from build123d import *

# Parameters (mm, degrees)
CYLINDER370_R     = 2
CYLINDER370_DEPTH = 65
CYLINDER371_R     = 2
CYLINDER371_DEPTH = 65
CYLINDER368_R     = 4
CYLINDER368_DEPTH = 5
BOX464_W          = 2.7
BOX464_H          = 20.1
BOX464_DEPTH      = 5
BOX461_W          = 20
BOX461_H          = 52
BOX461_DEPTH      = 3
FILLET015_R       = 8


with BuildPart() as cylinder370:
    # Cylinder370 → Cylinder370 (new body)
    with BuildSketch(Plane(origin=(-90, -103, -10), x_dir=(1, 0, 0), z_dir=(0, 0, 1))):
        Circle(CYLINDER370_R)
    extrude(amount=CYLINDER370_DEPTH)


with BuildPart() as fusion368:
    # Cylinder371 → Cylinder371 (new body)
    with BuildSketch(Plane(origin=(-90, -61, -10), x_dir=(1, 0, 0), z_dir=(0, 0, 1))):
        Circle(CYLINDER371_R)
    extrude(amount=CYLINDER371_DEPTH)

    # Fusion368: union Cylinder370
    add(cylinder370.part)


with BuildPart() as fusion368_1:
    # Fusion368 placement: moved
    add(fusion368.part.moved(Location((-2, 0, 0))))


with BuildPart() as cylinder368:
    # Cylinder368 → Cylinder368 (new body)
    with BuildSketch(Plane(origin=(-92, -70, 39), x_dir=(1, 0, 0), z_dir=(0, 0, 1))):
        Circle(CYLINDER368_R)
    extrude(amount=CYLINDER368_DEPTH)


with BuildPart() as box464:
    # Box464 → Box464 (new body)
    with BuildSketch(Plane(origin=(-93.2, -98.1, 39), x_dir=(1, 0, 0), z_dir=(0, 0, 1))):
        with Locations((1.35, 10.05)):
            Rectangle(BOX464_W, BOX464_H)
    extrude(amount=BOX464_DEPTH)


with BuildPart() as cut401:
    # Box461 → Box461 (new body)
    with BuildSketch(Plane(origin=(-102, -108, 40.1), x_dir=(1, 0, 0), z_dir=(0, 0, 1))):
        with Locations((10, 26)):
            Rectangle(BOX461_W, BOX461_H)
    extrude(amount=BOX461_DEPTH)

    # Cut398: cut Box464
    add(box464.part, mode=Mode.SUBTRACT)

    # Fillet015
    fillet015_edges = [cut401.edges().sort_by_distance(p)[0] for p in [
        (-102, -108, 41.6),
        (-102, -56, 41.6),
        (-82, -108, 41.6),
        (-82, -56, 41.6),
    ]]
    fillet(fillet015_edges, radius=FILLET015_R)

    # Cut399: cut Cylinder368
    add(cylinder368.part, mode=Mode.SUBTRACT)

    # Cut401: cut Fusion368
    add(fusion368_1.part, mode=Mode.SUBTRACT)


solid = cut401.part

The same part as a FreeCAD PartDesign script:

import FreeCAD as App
import Part
import Sketcher

V = App.Vector
Q = App.Units.Quantity


def edges_at(feature, points):
    """Names of the edges that pass closest to the given points."""
    edges = feature.Shape.Edges
    near = lambda p: min(range(len(edges)), key=lambda i: edges[i].distToShape(Part.Vertex(*p))[0])
    return sorted({f"Edge{near(p) + 1}" for p in points})

doc = App.newDocument("Part")
body = doc.addObject("PartDesign::Body", "Body")

sketch1 = body.newObject("Sketcher::SketchObject", "Sketch")
sketch1.AttachmentSupport = (doc.getObject("XY_Plane"), [""])
sketch1.MapMode = "FlatFace"
sketch1.AttachmentOffset = App.Placement(V(0, 0, -10), App.Rotation())
sketch1.addGeometry(Part.Circle(V(-90, -103, 0), V(0, 0, 1), 2), False)
sketch1.addConstraint([
    Sketcher.Constraint("Diameter", 0, Q("4 mm")),
    Sketcher.Constraint("DistanceX", 0, 3, -1, 1, Q("90 mm")),
    Sketcher.Constraint("DistanceY", 0, 3, -1, 1, Q("103 mm")),
])
pad1 = body.newObject("PartDesign::Pad", "Pad")
pad1.Profile = sketch1
pad1.Length = 65
body2 = doc.addObject("PartDesign::Body", "Body001")
body2.AllowCompound = True

sketch2 = body2.newObject("Sketcher::SketchObject", "Sketch001")
sketch2.AttachmentSupport = (doc.getObject("XY_Plane001"), [""])
sketch2.MapMode = "FlatFace"
sketch2.AttachmentOffset = App.Placement(V(0, 0, -10), App.Rotation())
sketch2.addGeometry(Part.Circle(V(-90, -61, 0), V(0, 0, 1), 2), False)
sketch2.addConstraint([
    Sketcher.Constraint("Diameter", 0, Q("4 mm")),
    Sketcher.Constraint("DistanceX", 0, 3, -1, 1, Q("90 mm")),
    Sketcher.Constraint("DistanceY", 0, 3, -1, 1, Q("61 mm")),
])
pad2 = body2.newObject("PartDesign::Pad", "Pad001")
pad2.Profile = sketch2
pad2.Length = 65
doc.recompute()

boolean = body2.newObject("PartDesign::Boolean", "Boolean")
boolean.Type = "Fuse"
boolean.addObjects([body])
body3 = doc.addObject("PartDesign::Body", "Body002")
body3.AllowCompound = True
doc.recompute()

body2.Placement = App.Placement(V(-2, 0, 0), App.Rotation(V(0, 0, 1), 0))
boolean2 = body3.newObject("PartDesign::Boolean", "Boolean001")
boolean2.Type = "Fuse"
boolean2.addObjects([body2])
body4 = doc.addObject("PartDesign::Body", "Body003")

sketch3 = body4.newObject("Sketcher::SketchObject", "Sketch002")
sketch3.AttachmentSupport = (doc.getObject("XY_Plane003"), [""])
sketch3.MapMode = "FlatFace"
sketch3.AttachmentOffset = App.Placement(V(0, 0, 39), App.Rotation())
sketch3.addGeometry(Part.Circle(V(-92, -70, 0), V(0, 0, 1), 4), False)
sketch3.addConstraint([
    Sketcher.Constraint("Diameter", 0, Q("8 mm")),
    Sketcher.Constraint("DistanceX", 0, 3, -1, 1, Q("92 mm")),
    Sketcher.Constraint("DistanceY", 0, 3, -1, 1, Q("70 mm")),
])
pad3 = body4.newObject("PartDesign::Pad", "Pad002")
pad3.Profile = sketch3
pad3.Length = 5
body5 = doc.addObject("PartDesign::Body", "Body004")

sketch4 = body5.newObject("Sketcher::SketchObject", "Sketch003")
sketch4.AttachmentSupport = (doc.getObject("XY_Plane004"), [""])
sketch4.MapMode = "FlatFace"
sketch4.AttachmentOffset = App.Placement(V(0, 0, 39), App.Rotation())
sketch4.addGeometry([
    Part.LineSegment(V(-93.2, -78, 0), V(-93.2, -98.1, 0)),
    Part.LineSegment(V(-93.2, -98.1, 0), V(-90.5, -98.1, 0)),
    Part.LineSegment(V(-90.5, -98.1, 0), V(-90.5, -78, 0)),
    Part.LineSegment(V(-90.5, -78, 0), V(-93.2, -78, 0)),
], False)
sketch4.addConstraint([
    Sketcher.Constraint("Coincident", 0, 2, 1, 1),
    Sketcher.Constraint("Coincident", 1, 2, 2, 1),
    Sketcher.Constraint("Coincident", 2, 2, 3, 1),
    Sketcher.Constraint("Coincident", 3, 2, 0, 1),
    Sketcher.Constraint("Vertical", 0),
    Sketcher.Constraint("Horizontal", 1),
    Sketcher.Constraint("Vertical", 2),
    Sketcher.Constraint("Horizontal", 3),
    Sketcher.Constraint("DistanceX", 1, 1, 1, 2, Q("2.7 mm")),
    Sketcher.Constraint("DistanceY", 0, 2, 0, 1, Q("20.1 mm")),
    Sketcher.Constraint("DistanceY", 2, 2, -1, 1, Q("78 mm")),
    Sketcher.Constraint("DistanceX", 0, 2, -1, 1, Q("93.2 mm")),
])
pad4 = body5.newObject("PartDesign::Pad", "Pad003")
pad4.Profile = sketch4
pad4.Length = 5
body6 = doc.addObject("PartDesign::Body", "Body005")

sketch5 = body6.newObject("Sketcher::SketchObject", "Sketch004")
sketch5.AttachmentSupport = (doc.getObject("XY_Plane005"), [""])
sketch5.MapMode = "FlatFace"
sketch5.AttachmentOffset = App.Placement(V(0, 0, 40.1), App.Rotation())
sketch5.addGeometry([
    Part.LineSegment(V(-102, -56, 0), V(-102, -108, 0)),
    Part.LineSegment(V(-102, -108, 0), V(-82, -108, 0)),
    Part.LineSegment(V(-82, -108, 0), V(-82, -56, 0)),
    Part.LineSegment(V(-82, -56, 0), V(-102, -56, 0)),
], False)
sketch5.addConstraint([
    Sketcher.Constraint("Coincident", 0, 2, 1, 1),
    Sketcher.Constraint("Coincident", 1, 2, 2, 1),
    Sketcher.Constraint("Coincident", 2, 2, 3, 1),
    Sketcher.Constraint("Coincident", 3, 2, 0, 1),
    Sketcher.Constraint("Vertical", 0),
    Sketcher.Constraint("Horizontal", 1),
    Sketcher.Constraint("Vertical", 2),
    Sketcher.Constraint("Horizontal", 3),
    Sketcher.Constraint("DistanceX", 1, 1, 1, 2, Q("20 mm")),
    Sketcher.Constraint("DistanceY", 0, 2, 0, 1, Q("52 mm")),
    Sketcher.Constraint("DistanceX", 0, 2, -1, 1, Q("102 mm")),
    Sketcher.Constraint("DistanceY", 0, 2, -1, 1, Q("108 mm")),
])
pad5 = body6.newObject("PartDesign::Pad", "Pad004")
pad5.Profile = sketch5
pad5.Length = 3
doc.recompute()

boolean3 = body6.newObject("PartDesign::Boolean", "Boolean002")
boolean3.Type = "Cut"
boolean3.addObjects([body5])
doc.recompute()

fillet = body6.newObject("PartDesign::Fillet", "Fillet")
fillet.Base = (boolean3, edges_at(boolean3, [
    (-102, -108, 41.6),
    (-102, -56, 41.6),
    (-82, -108, 41.6),
    (-82, -56, 41.6),
]))
fillet.Radius = 8
doc.recompute()

boolean4 = body6.newObject("PartDesign::Boolean", "Boolean003")
boolean4.Type = "Cut"
boolean4.addObjects([body4])
doc.recompute()

boolean5 = body6.newObject("PartDesign::Boolean", "Boolean004")
boolean5.Type = "Cut"
boolean5.addObjects([body3])

doc.recompute()
